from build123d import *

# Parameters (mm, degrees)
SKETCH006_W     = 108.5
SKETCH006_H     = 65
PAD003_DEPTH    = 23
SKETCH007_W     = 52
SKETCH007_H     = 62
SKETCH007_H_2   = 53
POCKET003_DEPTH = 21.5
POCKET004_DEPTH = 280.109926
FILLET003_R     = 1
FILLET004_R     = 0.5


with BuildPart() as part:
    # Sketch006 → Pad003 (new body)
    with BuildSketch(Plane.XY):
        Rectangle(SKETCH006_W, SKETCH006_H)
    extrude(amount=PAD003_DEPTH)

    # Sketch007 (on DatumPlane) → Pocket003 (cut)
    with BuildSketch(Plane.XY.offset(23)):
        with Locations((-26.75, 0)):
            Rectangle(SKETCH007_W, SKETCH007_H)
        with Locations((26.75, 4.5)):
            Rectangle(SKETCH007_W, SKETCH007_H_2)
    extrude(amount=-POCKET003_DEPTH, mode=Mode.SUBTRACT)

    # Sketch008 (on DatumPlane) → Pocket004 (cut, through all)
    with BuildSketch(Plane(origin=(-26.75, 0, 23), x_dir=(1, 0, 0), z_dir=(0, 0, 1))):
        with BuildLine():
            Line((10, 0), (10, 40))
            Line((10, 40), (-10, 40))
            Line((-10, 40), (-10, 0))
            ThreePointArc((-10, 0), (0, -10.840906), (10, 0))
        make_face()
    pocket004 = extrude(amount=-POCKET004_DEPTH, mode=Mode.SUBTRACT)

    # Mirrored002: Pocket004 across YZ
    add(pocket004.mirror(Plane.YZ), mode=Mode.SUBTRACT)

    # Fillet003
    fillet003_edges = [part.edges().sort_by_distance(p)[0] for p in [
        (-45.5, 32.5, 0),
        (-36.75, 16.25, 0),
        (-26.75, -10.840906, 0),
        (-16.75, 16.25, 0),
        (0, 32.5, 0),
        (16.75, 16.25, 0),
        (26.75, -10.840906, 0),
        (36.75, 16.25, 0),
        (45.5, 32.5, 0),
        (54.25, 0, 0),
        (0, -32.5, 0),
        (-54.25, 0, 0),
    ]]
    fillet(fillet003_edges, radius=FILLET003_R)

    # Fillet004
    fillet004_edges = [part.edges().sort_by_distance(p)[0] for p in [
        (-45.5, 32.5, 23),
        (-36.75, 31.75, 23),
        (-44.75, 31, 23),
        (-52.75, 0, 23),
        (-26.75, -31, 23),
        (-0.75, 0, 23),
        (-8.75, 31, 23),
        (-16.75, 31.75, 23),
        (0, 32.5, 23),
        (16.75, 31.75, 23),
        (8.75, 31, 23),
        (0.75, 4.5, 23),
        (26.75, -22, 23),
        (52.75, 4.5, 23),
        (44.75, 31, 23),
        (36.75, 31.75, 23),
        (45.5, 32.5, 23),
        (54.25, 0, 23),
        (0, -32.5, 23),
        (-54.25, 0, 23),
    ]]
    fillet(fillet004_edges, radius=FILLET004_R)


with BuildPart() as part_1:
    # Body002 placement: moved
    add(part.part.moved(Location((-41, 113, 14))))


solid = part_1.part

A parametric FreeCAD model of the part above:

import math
import FreeCAD as App
import Part
import Sketcher

V = App.Vector


def edges_at(feature, points):
    """Names of the edges that pass closest to the given points."""
    edges = feature.Shape.Edges
    near = lambda p: min(range(len(edges)), key=lambda i: edges[i].distToShape(Part.Vertex(*p))[0])
    return sorted({f"Edge{near(p) + 1}" for p in points})

doc = App.newDocument("Part")
params = doc.addObject("Spreadsheet::Sheet", "Params")
for row, (alias, value) in enumerate([
    ("sketch1_height", "65 mm"),
    ("sketch1_width", "108.5 mm"),
    ("pad1_length", "23 mm"),
    ("sketch2_width", "52 mm"),
    ("sketch2_height", "62 mm"),
    ("sketch2_height2", "53 mm"),
    ("pocket1_length", "21.5 mm"),
    ("sketch3_width", "20 mm"),
    ("sketch3_height", "40 mm"),
    ("fillet_radius", "1 mm"),
    ("fillet2_radius", "0.5 mm"),
], start=1):
    params.set(f"A{row}", alias)
    params.set(f"B{row}", "=" + value)
    params.setAlias(f"B{row}", alias)

body = doc.addObject("PartDesign::Body", "Body")

# Sketch on XY plane
sketch1 = body.newObject("Sketcher::SketchObject", "Sketch")
sketch1.AttachmentSupport = (doc.getObject("XY_Plane"), [""])
sketch1.MapMode = "FlatFace"
sketch1.addGeometry(Part.LineSegment(V(-54.25, 32.5, 0), V(-54.25, -32.5, 0)), False)
sketch1.addGeometry(Part.LineSegment(V(-54.25, -32.5, 0), V(54.25, -32.5, 0)), False)
sketch1.addGeometry(Part.LineSegment(V(54.25, -32.5, 0), V(54.25, 32.5, 0)), False)
sketch1.addGeometry(Part.LineSegment(V(54.25, 32.5, 0), V(-54.25, 32.5, 0)), False)
sketch1.addConstraint(Sketcher.Constraint("Coincident", 0, 2, 1, 1))
sketch1.addConstraint(Sketcher.Constraint("Coincident", 1, 2, 2, 1))
sketch1.addConstraint(Sketcher.Constraint("Coincident", 2, 2, 3, 1))
sketch1.addConstraint(Sketcher.Constraint("Coincident", 3, 2, 0, 1))
sketch1.addConstraint(Sketcher.Constraint("Vertical", 0))
sketch1.addConstraint(Sketcher.Constraint("Horizontal", 1))
sketch1.addConstraint(Sketcher.Constraint("Vertical", 2))
sketch1.addConstraint(Sketcher.Constraint("Horizontal", 3))
sketch1.addConstraint(Sketcher.Constraint("Symmetric", 0, 2, 2, 2, -1, 1))
sketch1.addConstraint(Sketcher.Constraint("DistanceY", 0, 2, 0, 1, 65.0))
sketch1.addConstraint(Sketcher.Constraint("DistanceX", 1, 1, 1, 2, 108.5))
sketch1.setExpression("Constraints[9]", "Params.sketch1_height")
sketch1.setExpression("Constraints[10]", "Params.sketch1_width")
pad1 = body.newObject("PartDesign::Pad", "Pad")
pad1.Profile = sketch1
pad1.setExpression("Length", "Params.pad1_length")

# Sketch on XY plane
sketch2 = body.newObject("Sketcher::SketchObject", "Sketch001")
sketch2.AttachmentSupport = (doc.getObject("XY_Plane"), [""])
sketch2.MapMode = "FlatFace"
sketch2.AttachmentOffset = App.Placement(V(0, 0, 23), App.Rotation())
sketch2.addGeometry(Part.LineSegment(V(-52.75, 31, 0), V(-52.75, -31, 0)), False)
sketch2.addGeometry(Part.LineSegment(V(-52.75, -31, 0), V(-0.75, -31, 0)), False)
sketch2.addGeometry(Part.LineSegment(V(-0.75, -31, 0), V(-0.75, 31, 0)), False)
sketch2.addGeometry(Part.LineSegment(V(-0.75, 31, 0), V(-52.75, 31, 0)), False)
sketch2.addGeometry(Part.LineSegment(V(0.75, 31, 0), V(0.75, -22, 0)), False)
sketch2.addGeometry(Part.LineSegment(V(0.75, -22, 0), V(52.75, -22, 0)), False)
sketch2.addGeometry(Part.LineSegment(V(52.75, -22, 0), V(52.75, 31, 0)), False)
sketch2.addGeometry(Part.LineSegment(V(52.75, 31, 0), V(0.75, 31, 0)), False)
sketch2.addConstraint(Sketcher.Constraint("Coincident", 0, 2, 1, 1))
sketch2.addConstraint(Sketcher.Constraint("Coincident", 1, 2, 2, 1))
sketch2.addConstraint(Sketcher.Constraint("Coincident", 2, 2, 3, 1))
sketch2.addConstraint(Sketcher.Constraint("Coincident", 3, 2, 0, 1))
sketch2.addConstraint(Sketcher.Constraint("Coincident", 4, 2, 5, 1))
sketch2.addConstraint(Sketcher.Constraint("Coincident", 5, 2, 6, 1))
sketch2.addConstraint(Sketcher.Constraint("Coincident", 6, 2, 7, 1))
sketch2.addConstraint(Sketcher.Constraint("Coincident", 7, 2, 4, 1))
sketch2.addConstraint(Sketcher.Constraint("Vertical", 0))
sketch2.addConstraint(Sketcher.Constraint("Horizontal", 1))
sketch2.addConstraint(Sketcher.Constraint("Vertical", 2))
sketch2.addConstraint(Sketcher.Constraint("Horizontal", 3))
sketch2.addConstraint(Sketcher.Constraint("Vertical", 4))
sketch2.addConstraint(Sketcher.Constraint("Horizontal", 5))
sketch2.addConstraint(Sketcher.Constraint("Vertical", 6))
sketch2.addConstraint(Sketcher.Constraint("Horizontal", 7))
sketch2.addConstraint(Sketcher.Constraint("Symmetric", 0, 2, 6, 2, -1, 1))
sketch2.addConstraint(Sketcher.Constraint("Symmetric", 2, 2, 7, 2, -2))
sketch2.addConstraint(Sketcher.Constraint("DistanceX", 1, 1, 1, 2, 52.0))
sketch2.addConstraint(Sketcher.Constraint("DistanceY", 0, 2, 0, 1, 62.0))
sketch2.addConstraint(Sketcher.Constraint("DistanceY", 4, 2, 4, 1, 53.0))
sketch2.addConstraint(Sketcher.Constraint("DistanceX", 1, 2, 4, 2, 1.5))
sketch2.setExpression("Constraints[18]", "Params.sketch2_width")
sketch2.setExpression("Constraints[19]", "Params.sketch2_height")
sketch2.setExpression("Constraints[20]", "Params.sketch2_height2")
pocket1 = body.newObject("PartDesign::Pocket", "Pocket")
pocket1.Profile = sketch2
pocket1.setExpression("Length", "Params.pocket1_length")

# Sketch on XY plane
sketch3 = body.newObject("Sketcher::SketchObject", "Sketch002")
sketch3.AttachmentSupport = (doc.getObject("XY_Plane"), [""])
sketch3.MapMode = "FlatFace"
sketch3.AttachmentOffset = App.Placement(V(0, 0, 23), App.Rotation())
sketch3.addGeometry(Part.LineSegment(V(-16.75, 0, 0), V(-16.75, 40, 0)), False)
sketch3.addGeometry(Part.LineSegment(V(-16.75, 40, 0), V(-36.75, 40, 0)), False)
sketch3.addGeometry(Part.LineSegment(V(-36.75, 40, 0), V(-36.75, 0, 0)), False)
sketch3.addGeometry(Part.ArcOfCircle(Part.Circle(V(-26.75, -0.808292, 0), V(0, 0, 1), 10.032614), math.radians(175.378872), math.radians(364.621128)), False)
sketch3.addConstraint(Sketcher.Constraint("Coincident", 0, 2, 1, 1))
sketch3.addConstraint(Sketcher.Constraint("Coincident", 1, 2, 2, 1))
sketch3.addConstraint(Sketcher.Constraint("Coincident", 2, 2, 3, 1))
sketch3.addConstraint(Sketcher.Constraint("Coincident", 3, 2, 0, 1))
sketch3.addConstraint(Sketcher.Constraint("Vertical", 0))
sketch3.addConstraint(Sketcher.Constraint("Horizontal", 1))
sketch3.addConstraint(Sketcher.Constraint("Vertical", 2))
sketch3.addConstraint(Sketcher.Constraint("PointOnObject", 2, 2, -1))
sketch3.addConstraint(Sketcher.Constraint("PointOnObject", 3, 2, -1))
sketch3.addConstraint(Sketcher.Constraint("DistanceX", 1, 2, 1, 1, 20.0))
sketch3.addConstraint(Sketcher.Constraint("DistanceY", 0, 1, 0, 2, 40.0))
sketch3.addConstraint(Sketcher.Constraint("DistanceX", 3, 3, -1, 1, 26.75))
sketch3.addConstraint(Sketcher.Constraint("Radius", 3, 10.032614))
sketch3.setExpression("Constraints[9]", "Params.sketch3_width")
sketch3.setExpression("Constraints[10]", "Params.sketch3_height")
pocket2 = body.newObject("PartDesign::Pocket", "Pocket001")
pocket2.Profile = sketch3
pocket2.Type = "ThroughAll"
doc.recompute()

mirrored = body.newObject("PartDesign::Mirrored", "Mirrored")
mirrored.Originals = [pocket2]
mirrored.MirrorPlane = (doc.getObject("YZ_Plane"), [""])
body.Tip = mirrored
doc.recompute()

fillet = body.newObject("PartDesign::Fillet", "Fillet")
fillet.Base = (mirrored, edges_at(mirrored, [
    (-45.5, 32.5, 0),
    (-36.75, 16.25, 0),
    (-26.75, -10.841, 0),
    (-16.75, 16.25, 0),
    (0, 32.5, 0),
    (16.75, 16.25, 0),
    (26.75, -10.841, 0),
    (36.75, 16.25, 0),
    (45.5, 32.5, 0),
    (54.25, 0, 0),
    (0, -32.5, 0),
    (-54.25, 0, 0),
]))
fillet.setExpression("Radius", "Params.fillet_radius")
doc.recompute()

fillet2 = body.newObject("PartDesign::Fillet", "Fillet001")
fillet2.Base = (fillet, edges_at(fillet, [
    (-45.5, 32.5, 23),
    (-36.75, 31.75, 23),
    (-44.75, 31, 23),
    (-52.75, 0, 23),
    (-26.75, -31, 23),
    (-0.75, 0, 23),
    (-8.75, 31, 23),
    (-16.75, 31.75, 23),
    (0, 32.5, 23),
    (16.75, 31.75, 23),
    (8.75, 31, 23),
    (0.75, 4.5, 23),
    (26.75, -22, 23),
    (52.75, 4.5, 23),
    (44.75, 31, 23),
    (36.75, 31.75, 23),
    (45.5, 32.5, 23),
    (54.25, 0, 23),
    (0, -32.5, 23),
    (-54.25, 0, 23),
]))
fillet2.setExpression("Radius", "Params.fillet2_radius")
body2 = doc.addObject("PartDesign::Body", "Body001")
doc.recompute()

body.Placement = App.Placement(V(-41, 113, 14), App.Rotation(V(0, 0, 1), 0))
boolean = body2.newObject("PartDesign::Boolean", "Boolean")
boolean.Type = "Fuse"
boolean.addObjects([body])

doc.recompute()
